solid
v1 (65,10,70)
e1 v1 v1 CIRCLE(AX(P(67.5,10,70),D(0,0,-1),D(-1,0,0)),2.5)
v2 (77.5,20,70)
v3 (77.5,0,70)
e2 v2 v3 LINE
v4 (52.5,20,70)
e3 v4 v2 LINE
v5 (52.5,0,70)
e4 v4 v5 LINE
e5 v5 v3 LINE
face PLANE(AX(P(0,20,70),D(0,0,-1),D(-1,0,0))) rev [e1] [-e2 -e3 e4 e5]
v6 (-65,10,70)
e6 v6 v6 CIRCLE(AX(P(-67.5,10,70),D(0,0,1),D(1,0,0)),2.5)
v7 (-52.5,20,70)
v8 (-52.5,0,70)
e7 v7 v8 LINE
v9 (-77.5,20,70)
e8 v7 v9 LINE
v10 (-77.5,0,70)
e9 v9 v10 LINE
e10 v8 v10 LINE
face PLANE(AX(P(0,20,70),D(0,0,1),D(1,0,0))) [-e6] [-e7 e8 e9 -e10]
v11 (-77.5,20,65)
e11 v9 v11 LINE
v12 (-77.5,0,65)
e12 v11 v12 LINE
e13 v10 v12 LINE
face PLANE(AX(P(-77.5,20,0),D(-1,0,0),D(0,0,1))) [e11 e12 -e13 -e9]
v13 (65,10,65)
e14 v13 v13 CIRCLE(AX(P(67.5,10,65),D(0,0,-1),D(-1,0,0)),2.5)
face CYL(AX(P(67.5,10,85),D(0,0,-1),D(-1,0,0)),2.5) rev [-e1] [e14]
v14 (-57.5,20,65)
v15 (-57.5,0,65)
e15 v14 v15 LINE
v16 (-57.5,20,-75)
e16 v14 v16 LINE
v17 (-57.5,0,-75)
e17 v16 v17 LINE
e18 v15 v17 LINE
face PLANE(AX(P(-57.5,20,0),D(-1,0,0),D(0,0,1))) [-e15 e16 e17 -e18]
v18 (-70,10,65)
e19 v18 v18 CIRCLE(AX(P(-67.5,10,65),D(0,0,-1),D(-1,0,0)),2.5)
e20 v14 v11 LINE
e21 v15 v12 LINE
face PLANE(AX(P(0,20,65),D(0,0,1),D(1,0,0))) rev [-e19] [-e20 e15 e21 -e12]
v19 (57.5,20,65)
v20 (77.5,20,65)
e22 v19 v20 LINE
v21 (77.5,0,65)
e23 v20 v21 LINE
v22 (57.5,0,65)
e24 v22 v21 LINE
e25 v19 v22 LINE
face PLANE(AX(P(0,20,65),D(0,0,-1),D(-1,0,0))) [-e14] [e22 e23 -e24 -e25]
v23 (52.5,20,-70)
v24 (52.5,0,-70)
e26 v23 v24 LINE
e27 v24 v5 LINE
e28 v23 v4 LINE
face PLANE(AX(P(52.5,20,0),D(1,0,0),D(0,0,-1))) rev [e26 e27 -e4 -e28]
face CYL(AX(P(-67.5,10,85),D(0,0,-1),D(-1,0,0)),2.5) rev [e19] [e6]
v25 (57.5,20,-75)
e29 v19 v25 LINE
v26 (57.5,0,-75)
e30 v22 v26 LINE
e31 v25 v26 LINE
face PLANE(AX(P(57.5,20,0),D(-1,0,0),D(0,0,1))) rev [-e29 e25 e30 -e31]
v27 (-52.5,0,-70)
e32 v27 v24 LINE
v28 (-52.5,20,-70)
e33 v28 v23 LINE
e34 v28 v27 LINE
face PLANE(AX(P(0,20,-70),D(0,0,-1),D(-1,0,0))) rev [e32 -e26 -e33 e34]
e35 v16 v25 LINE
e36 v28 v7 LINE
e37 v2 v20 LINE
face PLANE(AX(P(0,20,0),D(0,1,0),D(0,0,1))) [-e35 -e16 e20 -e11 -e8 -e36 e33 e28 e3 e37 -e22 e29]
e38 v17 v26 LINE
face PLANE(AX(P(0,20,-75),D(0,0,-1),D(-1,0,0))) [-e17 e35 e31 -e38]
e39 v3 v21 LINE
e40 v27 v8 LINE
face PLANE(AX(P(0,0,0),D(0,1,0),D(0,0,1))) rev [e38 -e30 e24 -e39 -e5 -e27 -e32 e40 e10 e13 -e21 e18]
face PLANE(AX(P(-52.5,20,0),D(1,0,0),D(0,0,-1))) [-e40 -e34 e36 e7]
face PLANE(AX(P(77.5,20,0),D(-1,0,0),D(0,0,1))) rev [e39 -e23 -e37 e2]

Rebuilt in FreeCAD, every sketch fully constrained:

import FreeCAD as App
import Part
import Sketcher
from FreeCAD import Vector
Q = App.Units.Quantity

doc = App.newDocument("Part")
body = doc.addObject("PartDesign::Body", "Body")

# Sketch on XZ plane
sketch1 = body.newObject("Sketcher::SketchObject", "Sketch")
sketch1.AttachmentSupport = (doc.getObject("XZ_Plane"), [""])
sketch1.MapMode = "FlatFace"
sketch1.addGeometry([
    Part.LineSegment(Vector(52.5, 70, 0), Vector(77.5, 70, 0)),  # 0
    Part.LineSegment(Vector(77.5, 70, 0), Vector(77.5, 65, 0)),  # 1
    Part.LineSegment(Vector(77.5, 65, 0), Vector(57.5, 65, 0)),  # 2
    Part.LineSegment(Vector(57.5, 65, 0), Vector(57.5, -75, 0)),  # 3
    Part.LineSegment(Vector(57.5, -75, 0), Vector(-57.5, -75, 0)),  # 4
    Part.LineSegment(Vector(-57.5, -75, 0), Vector(-57.5, 65, 0)),  # 5
    Part.LineSegment(Vector(-57.5, 65, 0), Vector(-77.5, 65, 0)),  # 6
    Part.LineSegment(Vector(-77.5, 65, 0), Vector(-77.5, 70, 0)),  # 7
    Part.LineSegment(Vector(-77.5, 70, 0), Vector(-52.5, 70, 0)),  # 8
    Part.LineSegment(Vector(-52.5, 70, 0), Vector(-52.5, -70, 0)),  # 9
    Part.LineSegment(Vector(-52.5, -70, 0), Vector(52.5, -70, 0)),  # 10
    Part.LineSegment(Vector(52.5, -70, 0), Vector(52.5, 70, 0)),  # 11
], False)
sketch1.addConstraint([
    Sketcher.Constraint("Coincident", 0, 2, 1, 1),
    Sketcher.Constraint("Coincident", 1, 2, 2, 1),
    Sketcher.Constraint("Coincident", 2, 2, 3, 1),
    Sketcher.Constraint("Coincident", 3, 2, 4, 1),
    Sketcher.Constraint("Coincident", 4, 2, 5, 1),
    Sketcher.Constraint("Coincident", 5, 2, 6, 1),
    Sketcher.Constraint("Coincident", 6, 2, 7, 1),
    Sketcher.Constraint("Coincident", 7, 2, 8, 1),
    Sketcher.Constraint("Coincident", 8, 2, 9, 1),
    Sketcher.Constraint("Coincident", 9, 2, 10, 1),
    Sketcher.Constraint("Coincident", 10, 2, 11, 1),
    Sketcher.Constraint("Coincident", 11, 2, 0, 1),
    Sketcher.Constraint("Horizontal", 0),
    Sketcher.Constraint("Vertical", 1),
    Sketcher.Constraint("Horizontal", 2),
    Sketcher.Constraint("Vertical", 3),
    Sketcher.Constraint("Horizontal", 4),
    Sketcher.Constraint("Vertical", 5),
    Sketcher.Constraint("Horizontal", 6),
    Sketcher.Constraint("Vertical", 7),
    Sketcher.Constraint("Horizontal", 8),
    Sketcher.Constraint("Vertical", 9),
    Sketcher.Constraint("Horizontal", 10),
    Sketcher.Constraint("Vertical", 11),
    Sketcher.Constraint("Symmetric", 8, 2, 10, 2, -1, 1),
    Sketcher.Constraint("Symmetric", 2, 2, 5, 2, -2),
    Sketcher.Constraint("Symmetric", 0, 2, 7, 2, -2),
    Sketcher.Constraint("Equal", 5, 9),
    Sketcher.Constraint("DistanceX", 0, 1, 0, 2, Q("25 mm")),
    Sketcher.Constraint("DistanceX", 2, 2, 2, 1, Q("20 mm")),
    Sketcher.Constraint("DistanceX", 4, 2, 4, 1, Q("115 mm")),
    Sketcher.Constraint("DistanceY", 1, 2, 1, 1, Q("5 mm")),
    Sketcher.Constraint("DistanceY", 3, 2, 3, 1, Q("140 mm")),
])
pad1 = body.newObject("PartDesign::Pad", "Pad")
pad1.Profile = sketch1
pad1.Length = 20
pad1.Reversed = True

# Sketch on XY plane
sketch2 = body.newObject("Sketcher::SketchObject", "Sketch001")
sketch2.AttachmentSupport = (doc.getObject("XY_Plane"), [""])
sketch2.MapMode = "FlatFace"
sketch2.AttachmentOffset = App.Placement(Vector(0, 0, 65), App.Rotation())
sketch2.addGeometry([
    Part.Circle(Vector(67.5, 10, 0), Vector(0, 0, 1), 2.5),
    Part.Circle(Vector(-67.5, 10, 0), Vector(0, 0, 1), 2.5),
], False)
sketch2.addConstraint([
    Sketcher.Constraint("Equal", 0, 1),
    Sketcher.Constraint("Symmetric", 0, 3, 1, 3, -2),
    Sketcher.Constraint("Diameter", 0, Q("5 mm")),
    Sketcher.Constraint("DistanceY", -1, 1, 0, 3, Q("10 mm")),
    Sketcher.Constraint("DistanceX", 1, 3, 0, 3, Q("135 mm")),
])
pocket1 = body.newObject("PartDesign::Pocket", "Pocket")
pocket1.Profile = sketch2
pocket1.Length = 20
pocket1.Reversed = True

doc.recompute()
